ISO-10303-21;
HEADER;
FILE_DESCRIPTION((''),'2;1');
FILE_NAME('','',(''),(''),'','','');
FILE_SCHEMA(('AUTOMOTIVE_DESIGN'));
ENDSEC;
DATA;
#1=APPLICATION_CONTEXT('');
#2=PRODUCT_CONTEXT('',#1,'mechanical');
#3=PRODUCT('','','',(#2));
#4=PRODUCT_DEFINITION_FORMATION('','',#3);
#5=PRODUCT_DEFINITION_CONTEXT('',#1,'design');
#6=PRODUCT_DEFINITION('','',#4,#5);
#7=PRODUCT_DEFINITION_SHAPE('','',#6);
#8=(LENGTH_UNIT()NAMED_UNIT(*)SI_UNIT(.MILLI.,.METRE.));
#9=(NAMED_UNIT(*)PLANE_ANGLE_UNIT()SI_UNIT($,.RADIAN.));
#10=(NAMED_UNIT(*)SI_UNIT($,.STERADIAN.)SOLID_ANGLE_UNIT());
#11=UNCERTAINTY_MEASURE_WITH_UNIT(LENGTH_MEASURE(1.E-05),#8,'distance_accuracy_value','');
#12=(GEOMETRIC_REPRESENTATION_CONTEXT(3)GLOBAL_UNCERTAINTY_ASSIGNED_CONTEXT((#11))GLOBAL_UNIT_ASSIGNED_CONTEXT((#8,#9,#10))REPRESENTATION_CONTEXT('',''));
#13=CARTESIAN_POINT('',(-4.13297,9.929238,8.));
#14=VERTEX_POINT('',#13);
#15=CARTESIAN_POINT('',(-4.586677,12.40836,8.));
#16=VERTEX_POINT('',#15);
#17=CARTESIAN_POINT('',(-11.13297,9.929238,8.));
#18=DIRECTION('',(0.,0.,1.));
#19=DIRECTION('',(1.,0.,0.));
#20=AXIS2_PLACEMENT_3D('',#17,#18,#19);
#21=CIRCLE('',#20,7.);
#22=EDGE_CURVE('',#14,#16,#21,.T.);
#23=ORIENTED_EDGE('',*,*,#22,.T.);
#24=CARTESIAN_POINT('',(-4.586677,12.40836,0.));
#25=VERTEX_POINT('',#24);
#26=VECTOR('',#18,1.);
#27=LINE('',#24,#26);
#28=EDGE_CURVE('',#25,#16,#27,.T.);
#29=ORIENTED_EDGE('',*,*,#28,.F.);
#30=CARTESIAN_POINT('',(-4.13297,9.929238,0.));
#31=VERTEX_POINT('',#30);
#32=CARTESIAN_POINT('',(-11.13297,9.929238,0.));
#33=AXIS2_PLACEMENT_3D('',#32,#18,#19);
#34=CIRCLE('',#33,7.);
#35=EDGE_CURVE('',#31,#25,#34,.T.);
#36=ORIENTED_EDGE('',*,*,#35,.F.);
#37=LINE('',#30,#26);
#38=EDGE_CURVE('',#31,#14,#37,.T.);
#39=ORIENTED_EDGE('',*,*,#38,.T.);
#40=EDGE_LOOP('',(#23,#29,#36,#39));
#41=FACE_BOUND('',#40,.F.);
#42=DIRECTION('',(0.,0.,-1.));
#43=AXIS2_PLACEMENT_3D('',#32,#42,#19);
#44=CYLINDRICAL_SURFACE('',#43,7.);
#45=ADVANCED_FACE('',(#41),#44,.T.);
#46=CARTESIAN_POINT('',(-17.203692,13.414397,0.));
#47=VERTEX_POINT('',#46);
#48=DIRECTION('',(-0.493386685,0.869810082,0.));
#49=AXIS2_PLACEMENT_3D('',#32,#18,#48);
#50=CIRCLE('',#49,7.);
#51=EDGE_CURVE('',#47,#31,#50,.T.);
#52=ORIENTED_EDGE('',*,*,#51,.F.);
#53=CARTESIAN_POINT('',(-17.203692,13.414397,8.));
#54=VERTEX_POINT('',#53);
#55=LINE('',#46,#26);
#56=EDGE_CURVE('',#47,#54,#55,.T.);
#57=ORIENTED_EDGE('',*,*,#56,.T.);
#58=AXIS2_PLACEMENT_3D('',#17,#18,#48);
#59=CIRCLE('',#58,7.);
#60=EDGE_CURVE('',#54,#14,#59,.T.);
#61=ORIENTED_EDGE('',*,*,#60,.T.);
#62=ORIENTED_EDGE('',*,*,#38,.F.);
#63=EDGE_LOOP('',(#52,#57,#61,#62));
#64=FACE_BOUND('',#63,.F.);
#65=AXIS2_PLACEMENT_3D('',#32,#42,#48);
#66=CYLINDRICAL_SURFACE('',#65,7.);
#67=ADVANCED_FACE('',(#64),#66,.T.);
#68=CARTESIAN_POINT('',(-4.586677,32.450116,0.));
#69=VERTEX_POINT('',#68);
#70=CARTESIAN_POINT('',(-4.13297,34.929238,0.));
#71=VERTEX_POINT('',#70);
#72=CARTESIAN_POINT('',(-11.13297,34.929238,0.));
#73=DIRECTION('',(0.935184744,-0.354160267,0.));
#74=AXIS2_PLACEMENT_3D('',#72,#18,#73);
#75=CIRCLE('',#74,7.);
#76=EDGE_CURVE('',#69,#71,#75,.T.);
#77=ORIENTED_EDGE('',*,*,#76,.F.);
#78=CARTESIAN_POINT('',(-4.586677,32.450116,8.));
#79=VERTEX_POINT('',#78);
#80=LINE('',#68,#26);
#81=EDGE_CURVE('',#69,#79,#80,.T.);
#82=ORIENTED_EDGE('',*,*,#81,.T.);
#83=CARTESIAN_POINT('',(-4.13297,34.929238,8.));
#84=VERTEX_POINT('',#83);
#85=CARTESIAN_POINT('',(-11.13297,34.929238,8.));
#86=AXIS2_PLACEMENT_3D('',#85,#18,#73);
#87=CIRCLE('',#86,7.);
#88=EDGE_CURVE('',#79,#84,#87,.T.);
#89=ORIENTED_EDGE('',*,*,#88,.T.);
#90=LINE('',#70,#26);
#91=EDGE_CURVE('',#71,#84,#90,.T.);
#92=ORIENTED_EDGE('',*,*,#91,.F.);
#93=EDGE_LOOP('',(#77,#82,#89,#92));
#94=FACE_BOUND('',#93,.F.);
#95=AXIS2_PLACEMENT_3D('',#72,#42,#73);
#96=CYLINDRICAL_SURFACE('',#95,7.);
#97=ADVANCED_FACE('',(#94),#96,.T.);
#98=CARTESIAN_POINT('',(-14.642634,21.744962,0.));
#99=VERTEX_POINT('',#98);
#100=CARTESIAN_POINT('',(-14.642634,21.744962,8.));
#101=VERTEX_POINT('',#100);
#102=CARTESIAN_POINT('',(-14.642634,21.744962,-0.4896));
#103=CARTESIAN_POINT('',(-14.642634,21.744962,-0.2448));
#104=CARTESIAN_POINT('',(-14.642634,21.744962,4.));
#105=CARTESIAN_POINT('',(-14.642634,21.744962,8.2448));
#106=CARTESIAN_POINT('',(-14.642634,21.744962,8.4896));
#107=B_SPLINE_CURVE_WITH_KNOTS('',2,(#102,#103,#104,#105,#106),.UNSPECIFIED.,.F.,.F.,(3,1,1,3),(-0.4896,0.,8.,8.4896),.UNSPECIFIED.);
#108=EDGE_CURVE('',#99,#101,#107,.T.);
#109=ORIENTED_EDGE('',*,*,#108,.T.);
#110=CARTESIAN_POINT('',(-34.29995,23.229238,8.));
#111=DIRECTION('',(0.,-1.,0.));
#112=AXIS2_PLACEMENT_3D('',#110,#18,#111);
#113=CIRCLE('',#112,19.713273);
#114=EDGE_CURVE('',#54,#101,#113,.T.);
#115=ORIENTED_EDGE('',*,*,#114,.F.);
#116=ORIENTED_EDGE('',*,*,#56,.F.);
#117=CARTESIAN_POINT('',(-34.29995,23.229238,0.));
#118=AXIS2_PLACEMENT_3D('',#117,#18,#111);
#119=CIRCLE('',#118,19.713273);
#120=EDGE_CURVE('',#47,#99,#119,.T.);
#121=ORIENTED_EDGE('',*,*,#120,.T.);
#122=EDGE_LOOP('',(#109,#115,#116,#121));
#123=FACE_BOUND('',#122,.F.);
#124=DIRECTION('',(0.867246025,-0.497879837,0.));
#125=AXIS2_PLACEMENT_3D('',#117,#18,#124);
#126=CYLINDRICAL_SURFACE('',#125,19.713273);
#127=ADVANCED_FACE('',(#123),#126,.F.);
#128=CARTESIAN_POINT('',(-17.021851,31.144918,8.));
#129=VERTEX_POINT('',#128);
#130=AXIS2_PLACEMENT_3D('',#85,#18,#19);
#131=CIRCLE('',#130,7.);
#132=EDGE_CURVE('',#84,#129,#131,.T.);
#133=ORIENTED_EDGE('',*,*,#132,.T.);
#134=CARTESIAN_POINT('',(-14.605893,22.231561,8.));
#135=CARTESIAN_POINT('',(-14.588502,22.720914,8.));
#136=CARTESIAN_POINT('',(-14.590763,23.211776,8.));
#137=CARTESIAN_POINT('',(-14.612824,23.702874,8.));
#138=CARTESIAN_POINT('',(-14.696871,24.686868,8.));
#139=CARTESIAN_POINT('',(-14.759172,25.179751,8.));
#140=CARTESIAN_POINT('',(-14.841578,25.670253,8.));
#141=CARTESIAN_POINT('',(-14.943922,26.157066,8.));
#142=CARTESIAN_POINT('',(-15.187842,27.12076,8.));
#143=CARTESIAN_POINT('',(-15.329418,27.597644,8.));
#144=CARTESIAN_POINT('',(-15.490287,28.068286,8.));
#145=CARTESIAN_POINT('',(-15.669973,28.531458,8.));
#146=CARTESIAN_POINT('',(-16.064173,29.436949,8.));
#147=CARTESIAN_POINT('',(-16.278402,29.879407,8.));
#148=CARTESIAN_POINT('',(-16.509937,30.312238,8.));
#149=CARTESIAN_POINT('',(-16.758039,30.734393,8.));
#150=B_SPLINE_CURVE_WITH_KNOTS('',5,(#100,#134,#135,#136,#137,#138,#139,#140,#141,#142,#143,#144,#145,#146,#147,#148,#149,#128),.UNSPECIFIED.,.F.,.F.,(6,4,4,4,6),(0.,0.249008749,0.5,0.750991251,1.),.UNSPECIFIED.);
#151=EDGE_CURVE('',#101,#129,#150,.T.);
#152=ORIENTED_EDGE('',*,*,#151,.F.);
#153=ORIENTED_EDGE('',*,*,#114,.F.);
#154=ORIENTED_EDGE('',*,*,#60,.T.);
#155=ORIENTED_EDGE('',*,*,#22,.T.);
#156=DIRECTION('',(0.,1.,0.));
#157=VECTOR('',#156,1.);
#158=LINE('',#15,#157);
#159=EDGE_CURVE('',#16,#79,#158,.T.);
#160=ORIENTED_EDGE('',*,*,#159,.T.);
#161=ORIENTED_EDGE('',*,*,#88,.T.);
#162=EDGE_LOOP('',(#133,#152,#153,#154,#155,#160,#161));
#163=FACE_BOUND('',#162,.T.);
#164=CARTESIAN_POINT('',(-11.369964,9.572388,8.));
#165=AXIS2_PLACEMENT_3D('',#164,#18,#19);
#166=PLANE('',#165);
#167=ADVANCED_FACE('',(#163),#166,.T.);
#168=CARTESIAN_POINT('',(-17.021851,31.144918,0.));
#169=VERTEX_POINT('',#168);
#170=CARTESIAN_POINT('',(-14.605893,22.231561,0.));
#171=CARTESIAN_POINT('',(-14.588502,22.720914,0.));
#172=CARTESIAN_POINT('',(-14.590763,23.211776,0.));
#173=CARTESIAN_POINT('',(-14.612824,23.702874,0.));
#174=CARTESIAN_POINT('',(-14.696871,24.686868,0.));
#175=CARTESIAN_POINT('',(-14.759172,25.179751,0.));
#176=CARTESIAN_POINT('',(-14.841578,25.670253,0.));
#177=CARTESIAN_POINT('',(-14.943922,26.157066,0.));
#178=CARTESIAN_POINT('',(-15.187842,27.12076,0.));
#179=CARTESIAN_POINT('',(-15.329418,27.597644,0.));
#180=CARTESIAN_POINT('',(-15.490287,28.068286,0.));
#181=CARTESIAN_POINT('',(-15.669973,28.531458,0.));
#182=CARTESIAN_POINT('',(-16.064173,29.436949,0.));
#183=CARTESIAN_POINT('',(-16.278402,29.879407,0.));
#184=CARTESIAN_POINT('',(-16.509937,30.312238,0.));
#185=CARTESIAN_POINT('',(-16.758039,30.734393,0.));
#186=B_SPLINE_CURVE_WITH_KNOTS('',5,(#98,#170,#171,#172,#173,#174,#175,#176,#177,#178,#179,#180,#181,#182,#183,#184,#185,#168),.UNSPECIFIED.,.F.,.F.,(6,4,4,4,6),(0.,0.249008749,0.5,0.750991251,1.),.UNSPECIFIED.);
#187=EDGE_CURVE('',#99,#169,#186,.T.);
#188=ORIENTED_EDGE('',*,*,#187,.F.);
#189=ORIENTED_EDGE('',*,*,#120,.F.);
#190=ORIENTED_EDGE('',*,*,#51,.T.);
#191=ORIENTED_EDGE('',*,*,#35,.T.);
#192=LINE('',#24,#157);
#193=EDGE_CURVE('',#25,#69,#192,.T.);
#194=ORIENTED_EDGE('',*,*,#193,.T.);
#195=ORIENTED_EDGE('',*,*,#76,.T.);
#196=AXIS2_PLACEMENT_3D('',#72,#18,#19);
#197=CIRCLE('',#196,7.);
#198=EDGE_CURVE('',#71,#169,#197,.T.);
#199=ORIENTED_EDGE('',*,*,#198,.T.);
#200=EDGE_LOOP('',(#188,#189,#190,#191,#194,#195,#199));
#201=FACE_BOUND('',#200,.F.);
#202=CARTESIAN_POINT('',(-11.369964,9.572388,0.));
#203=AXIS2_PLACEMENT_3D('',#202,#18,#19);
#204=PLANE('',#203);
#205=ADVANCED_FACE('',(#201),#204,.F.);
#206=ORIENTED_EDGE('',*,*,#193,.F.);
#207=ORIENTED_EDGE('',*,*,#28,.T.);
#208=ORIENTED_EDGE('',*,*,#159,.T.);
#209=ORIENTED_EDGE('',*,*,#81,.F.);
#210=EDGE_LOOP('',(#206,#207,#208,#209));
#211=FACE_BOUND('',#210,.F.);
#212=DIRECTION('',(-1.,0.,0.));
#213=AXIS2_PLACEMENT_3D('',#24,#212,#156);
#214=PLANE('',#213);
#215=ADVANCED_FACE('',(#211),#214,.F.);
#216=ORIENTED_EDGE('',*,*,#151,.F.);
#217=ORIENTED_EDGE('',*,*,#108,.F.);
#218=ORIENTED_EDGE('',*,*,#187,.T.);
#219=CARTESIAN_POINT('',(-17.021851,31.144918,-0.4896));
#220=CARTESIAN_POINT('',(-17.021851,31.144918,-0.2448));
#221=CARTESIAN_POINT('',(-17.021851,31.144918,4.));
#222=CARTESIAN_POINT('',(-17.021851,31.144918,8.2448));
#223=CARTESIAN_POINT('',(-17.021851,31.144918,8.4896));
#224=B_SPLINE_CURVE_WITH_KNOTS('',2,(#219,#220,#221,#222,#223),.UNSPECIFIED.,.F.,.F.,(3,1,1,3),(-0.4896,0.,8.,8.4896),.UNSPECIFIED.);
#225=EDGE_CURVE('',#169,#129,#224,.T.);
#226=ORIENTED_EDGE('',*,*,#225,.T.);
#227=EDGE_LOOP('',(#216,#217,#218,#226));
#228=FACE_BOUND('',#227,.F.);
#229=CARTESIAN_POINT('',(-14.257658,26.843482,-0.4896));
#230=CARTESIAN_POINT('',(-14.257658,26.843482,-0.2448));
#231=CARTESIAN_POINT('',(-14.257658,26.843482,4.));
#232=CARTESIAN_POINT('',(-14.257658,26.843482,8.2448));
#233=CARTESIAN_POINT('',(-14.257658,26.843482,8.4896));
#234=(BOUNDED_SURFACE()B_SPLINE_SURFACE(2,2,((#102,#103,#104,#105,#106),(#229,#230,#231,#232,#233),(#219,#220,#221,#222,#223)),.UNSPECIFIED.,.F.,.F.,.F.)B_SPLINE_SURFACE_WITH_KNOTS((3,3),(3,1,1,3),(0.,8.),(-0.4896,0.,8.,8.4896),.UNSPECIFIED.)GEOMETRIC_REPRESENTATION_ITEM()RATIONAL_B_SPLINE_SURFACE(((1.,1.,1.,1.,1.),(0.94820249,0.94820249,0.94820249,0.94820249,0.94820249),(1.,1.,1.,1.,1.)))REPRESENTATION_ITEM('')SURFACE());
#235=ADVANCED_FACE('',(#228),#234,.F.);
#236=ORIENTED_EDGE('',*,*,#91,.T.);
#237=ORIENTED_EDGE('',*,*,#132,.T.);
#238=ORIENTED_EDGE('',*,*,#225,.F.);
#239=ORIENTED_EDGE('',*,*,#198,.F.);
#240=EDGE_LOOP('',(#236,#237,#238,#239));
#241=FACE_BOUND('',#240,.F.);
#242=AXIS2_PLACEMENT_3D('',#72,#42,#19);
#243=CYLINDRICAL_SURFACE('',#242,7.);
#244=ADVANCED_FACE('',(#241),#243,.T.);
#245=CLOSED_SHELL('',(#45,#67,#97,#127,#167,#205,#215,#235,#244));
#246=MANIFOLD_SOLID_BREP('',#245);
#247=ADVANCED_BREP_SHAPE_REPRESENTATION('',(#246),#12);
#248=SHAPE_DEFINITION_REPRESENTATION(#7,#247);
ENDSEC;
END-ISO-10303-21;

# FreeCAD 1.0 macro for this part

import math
import FreeCAD as App
import Part
import Sketcher
Q = App.Units.Quantity


def edges_at(feature, points):
    """Names of the edges that pass closest to the given points."""
    edges = feature.Shape.Edges
    near = lambda p: min(range(len(edges)), key=lambda i: edges[i].distToShape(Part.Vertex(*p))[0])
    return sorted({f"Edge{near(p) + 1}" for p in points})

doc = App.newDocument("Part")
body = doc.addObject("PartDesign::Body", "Body")

# Sketch on XY plane
sketch1 = doc.addObject("Sketcher::SketchObject", "Sketch")
body.addObject(sketch1)
sketch1.AttachmentSupport = (doc.XY_Plane, [""])
sketch1.MapMode = "FlatFace"
sketch1.addGeometry([
    Part.ArcOfCircle(Part.Circle(App.Vector(-11.1, 9.9, 0), App.Vector(0, 0, 1), 7), math.radians(120), math.radians(360)),  # 0
    Part.ArcOfCircle(Part.Circle(App.Vector(-11.1, 9.9, 0), App.Vector(0, 0, 1), 7), math.radians(0), math.radians(21)),  # 1
    Part.LineSegment(App.Vector(-4.6, 12.4, 0), App.Vector(-4.6, 32.5, 0)),  # 2
    Part.ArcOfCircle(Part.Circle(App.Vector(-11.1, 34.9, 0), App.Vector(0, 0, 1), 7), math.radians(-21), math.radians(0)),  # 3
    Part.ArcOfCircle(Part.Circle(App.Vector(-11.1, 34.9, 0), App.Vector(0, 0, 1), 7), math.radians(0), math.radians(240)),  # 4
    Part.LineSegment(App.Vector(-14.6, 28.8, 0), App.Vector(-14.6, 16, 0)),  # 5
], False)
sketch1.addConstraint([
    Sketcher.Constraint("Tangent", 0, 2, 1, 1),
    Sketcher.Constraint("Coincident", 1, 2, 2, 1),
    Sketcher.Constraint("Coincident", 2, 2, 3, 1),
    Sketcher.Constraint("Tangent", 3, 2, 4, 1),
    Sketcher.Constraint("Coincident", 4, 2, 5, 1),
    Sketcher.Constraint("Coincident", 5, 2, 0, 1),
    Sketcher.Constraint("Vertical", 2),
    Sketcher.Constraint("Vertical", 5),
    Sketcher.Constraint("Equal", 0, 1),
    Sketcher.Constraint("Equal", 1, 3),
    Sketcher.Constraint("Equal", 3, 4),
    Sketcher.Constraint("Horizontal", 1, 3, 0, 2),
    Sketcher.Constraint("Horizontal", 4, 3, 3, 2),
    Sketcher.Constraint("Vertical", 1, 3, 3, 3),
    Sketcher.Constraint("Radius", 0, Q("7 mm")),
    Sketcher.Constraint("DistanceY", 0, 3, 3, 3, Q("25 mm")),
    Sketcher.Constraint("DistanceX", 4, 2, 2, 2, Q("10 mm")),
    Sketcher.Constraint("DistanceY", 5, 2, 5, 1, Q("12.822659 mm")),
    Sketcher.Constraint("DistanceX", 0, 3, -1, 1, Q("11.13297 mm")),
    Sketcher.Constraint("DistanceY", -1, 1, 0, 3, Q("9.929238 mm")),
])
pad1 = doc.addObject("PartDesign::Pad", "Pad")
body.addObject(pad1)
pad1.Profile = sketch1
pad1.Length = 8
doc.recompute()

fillet = doc.addObject("PartDesign::Fillet", "Fillet")
body.addObject(fillet)
fillet.Base = (pad1, edges_at(pad1, [(-14.587, 16.018, 4)]))
fillet.Radius = 19.713273
doc.recompute()

fillet2 = doc.addObject("PartDesign::Fillet", "Fillet001")
body.addObject(fillet2)
fillet2.Base = (fillet, edges_at(fillet, [(-14.587, 28.841, 4)]))
fillet2.Radius = 15.261889

doc.recompute()
